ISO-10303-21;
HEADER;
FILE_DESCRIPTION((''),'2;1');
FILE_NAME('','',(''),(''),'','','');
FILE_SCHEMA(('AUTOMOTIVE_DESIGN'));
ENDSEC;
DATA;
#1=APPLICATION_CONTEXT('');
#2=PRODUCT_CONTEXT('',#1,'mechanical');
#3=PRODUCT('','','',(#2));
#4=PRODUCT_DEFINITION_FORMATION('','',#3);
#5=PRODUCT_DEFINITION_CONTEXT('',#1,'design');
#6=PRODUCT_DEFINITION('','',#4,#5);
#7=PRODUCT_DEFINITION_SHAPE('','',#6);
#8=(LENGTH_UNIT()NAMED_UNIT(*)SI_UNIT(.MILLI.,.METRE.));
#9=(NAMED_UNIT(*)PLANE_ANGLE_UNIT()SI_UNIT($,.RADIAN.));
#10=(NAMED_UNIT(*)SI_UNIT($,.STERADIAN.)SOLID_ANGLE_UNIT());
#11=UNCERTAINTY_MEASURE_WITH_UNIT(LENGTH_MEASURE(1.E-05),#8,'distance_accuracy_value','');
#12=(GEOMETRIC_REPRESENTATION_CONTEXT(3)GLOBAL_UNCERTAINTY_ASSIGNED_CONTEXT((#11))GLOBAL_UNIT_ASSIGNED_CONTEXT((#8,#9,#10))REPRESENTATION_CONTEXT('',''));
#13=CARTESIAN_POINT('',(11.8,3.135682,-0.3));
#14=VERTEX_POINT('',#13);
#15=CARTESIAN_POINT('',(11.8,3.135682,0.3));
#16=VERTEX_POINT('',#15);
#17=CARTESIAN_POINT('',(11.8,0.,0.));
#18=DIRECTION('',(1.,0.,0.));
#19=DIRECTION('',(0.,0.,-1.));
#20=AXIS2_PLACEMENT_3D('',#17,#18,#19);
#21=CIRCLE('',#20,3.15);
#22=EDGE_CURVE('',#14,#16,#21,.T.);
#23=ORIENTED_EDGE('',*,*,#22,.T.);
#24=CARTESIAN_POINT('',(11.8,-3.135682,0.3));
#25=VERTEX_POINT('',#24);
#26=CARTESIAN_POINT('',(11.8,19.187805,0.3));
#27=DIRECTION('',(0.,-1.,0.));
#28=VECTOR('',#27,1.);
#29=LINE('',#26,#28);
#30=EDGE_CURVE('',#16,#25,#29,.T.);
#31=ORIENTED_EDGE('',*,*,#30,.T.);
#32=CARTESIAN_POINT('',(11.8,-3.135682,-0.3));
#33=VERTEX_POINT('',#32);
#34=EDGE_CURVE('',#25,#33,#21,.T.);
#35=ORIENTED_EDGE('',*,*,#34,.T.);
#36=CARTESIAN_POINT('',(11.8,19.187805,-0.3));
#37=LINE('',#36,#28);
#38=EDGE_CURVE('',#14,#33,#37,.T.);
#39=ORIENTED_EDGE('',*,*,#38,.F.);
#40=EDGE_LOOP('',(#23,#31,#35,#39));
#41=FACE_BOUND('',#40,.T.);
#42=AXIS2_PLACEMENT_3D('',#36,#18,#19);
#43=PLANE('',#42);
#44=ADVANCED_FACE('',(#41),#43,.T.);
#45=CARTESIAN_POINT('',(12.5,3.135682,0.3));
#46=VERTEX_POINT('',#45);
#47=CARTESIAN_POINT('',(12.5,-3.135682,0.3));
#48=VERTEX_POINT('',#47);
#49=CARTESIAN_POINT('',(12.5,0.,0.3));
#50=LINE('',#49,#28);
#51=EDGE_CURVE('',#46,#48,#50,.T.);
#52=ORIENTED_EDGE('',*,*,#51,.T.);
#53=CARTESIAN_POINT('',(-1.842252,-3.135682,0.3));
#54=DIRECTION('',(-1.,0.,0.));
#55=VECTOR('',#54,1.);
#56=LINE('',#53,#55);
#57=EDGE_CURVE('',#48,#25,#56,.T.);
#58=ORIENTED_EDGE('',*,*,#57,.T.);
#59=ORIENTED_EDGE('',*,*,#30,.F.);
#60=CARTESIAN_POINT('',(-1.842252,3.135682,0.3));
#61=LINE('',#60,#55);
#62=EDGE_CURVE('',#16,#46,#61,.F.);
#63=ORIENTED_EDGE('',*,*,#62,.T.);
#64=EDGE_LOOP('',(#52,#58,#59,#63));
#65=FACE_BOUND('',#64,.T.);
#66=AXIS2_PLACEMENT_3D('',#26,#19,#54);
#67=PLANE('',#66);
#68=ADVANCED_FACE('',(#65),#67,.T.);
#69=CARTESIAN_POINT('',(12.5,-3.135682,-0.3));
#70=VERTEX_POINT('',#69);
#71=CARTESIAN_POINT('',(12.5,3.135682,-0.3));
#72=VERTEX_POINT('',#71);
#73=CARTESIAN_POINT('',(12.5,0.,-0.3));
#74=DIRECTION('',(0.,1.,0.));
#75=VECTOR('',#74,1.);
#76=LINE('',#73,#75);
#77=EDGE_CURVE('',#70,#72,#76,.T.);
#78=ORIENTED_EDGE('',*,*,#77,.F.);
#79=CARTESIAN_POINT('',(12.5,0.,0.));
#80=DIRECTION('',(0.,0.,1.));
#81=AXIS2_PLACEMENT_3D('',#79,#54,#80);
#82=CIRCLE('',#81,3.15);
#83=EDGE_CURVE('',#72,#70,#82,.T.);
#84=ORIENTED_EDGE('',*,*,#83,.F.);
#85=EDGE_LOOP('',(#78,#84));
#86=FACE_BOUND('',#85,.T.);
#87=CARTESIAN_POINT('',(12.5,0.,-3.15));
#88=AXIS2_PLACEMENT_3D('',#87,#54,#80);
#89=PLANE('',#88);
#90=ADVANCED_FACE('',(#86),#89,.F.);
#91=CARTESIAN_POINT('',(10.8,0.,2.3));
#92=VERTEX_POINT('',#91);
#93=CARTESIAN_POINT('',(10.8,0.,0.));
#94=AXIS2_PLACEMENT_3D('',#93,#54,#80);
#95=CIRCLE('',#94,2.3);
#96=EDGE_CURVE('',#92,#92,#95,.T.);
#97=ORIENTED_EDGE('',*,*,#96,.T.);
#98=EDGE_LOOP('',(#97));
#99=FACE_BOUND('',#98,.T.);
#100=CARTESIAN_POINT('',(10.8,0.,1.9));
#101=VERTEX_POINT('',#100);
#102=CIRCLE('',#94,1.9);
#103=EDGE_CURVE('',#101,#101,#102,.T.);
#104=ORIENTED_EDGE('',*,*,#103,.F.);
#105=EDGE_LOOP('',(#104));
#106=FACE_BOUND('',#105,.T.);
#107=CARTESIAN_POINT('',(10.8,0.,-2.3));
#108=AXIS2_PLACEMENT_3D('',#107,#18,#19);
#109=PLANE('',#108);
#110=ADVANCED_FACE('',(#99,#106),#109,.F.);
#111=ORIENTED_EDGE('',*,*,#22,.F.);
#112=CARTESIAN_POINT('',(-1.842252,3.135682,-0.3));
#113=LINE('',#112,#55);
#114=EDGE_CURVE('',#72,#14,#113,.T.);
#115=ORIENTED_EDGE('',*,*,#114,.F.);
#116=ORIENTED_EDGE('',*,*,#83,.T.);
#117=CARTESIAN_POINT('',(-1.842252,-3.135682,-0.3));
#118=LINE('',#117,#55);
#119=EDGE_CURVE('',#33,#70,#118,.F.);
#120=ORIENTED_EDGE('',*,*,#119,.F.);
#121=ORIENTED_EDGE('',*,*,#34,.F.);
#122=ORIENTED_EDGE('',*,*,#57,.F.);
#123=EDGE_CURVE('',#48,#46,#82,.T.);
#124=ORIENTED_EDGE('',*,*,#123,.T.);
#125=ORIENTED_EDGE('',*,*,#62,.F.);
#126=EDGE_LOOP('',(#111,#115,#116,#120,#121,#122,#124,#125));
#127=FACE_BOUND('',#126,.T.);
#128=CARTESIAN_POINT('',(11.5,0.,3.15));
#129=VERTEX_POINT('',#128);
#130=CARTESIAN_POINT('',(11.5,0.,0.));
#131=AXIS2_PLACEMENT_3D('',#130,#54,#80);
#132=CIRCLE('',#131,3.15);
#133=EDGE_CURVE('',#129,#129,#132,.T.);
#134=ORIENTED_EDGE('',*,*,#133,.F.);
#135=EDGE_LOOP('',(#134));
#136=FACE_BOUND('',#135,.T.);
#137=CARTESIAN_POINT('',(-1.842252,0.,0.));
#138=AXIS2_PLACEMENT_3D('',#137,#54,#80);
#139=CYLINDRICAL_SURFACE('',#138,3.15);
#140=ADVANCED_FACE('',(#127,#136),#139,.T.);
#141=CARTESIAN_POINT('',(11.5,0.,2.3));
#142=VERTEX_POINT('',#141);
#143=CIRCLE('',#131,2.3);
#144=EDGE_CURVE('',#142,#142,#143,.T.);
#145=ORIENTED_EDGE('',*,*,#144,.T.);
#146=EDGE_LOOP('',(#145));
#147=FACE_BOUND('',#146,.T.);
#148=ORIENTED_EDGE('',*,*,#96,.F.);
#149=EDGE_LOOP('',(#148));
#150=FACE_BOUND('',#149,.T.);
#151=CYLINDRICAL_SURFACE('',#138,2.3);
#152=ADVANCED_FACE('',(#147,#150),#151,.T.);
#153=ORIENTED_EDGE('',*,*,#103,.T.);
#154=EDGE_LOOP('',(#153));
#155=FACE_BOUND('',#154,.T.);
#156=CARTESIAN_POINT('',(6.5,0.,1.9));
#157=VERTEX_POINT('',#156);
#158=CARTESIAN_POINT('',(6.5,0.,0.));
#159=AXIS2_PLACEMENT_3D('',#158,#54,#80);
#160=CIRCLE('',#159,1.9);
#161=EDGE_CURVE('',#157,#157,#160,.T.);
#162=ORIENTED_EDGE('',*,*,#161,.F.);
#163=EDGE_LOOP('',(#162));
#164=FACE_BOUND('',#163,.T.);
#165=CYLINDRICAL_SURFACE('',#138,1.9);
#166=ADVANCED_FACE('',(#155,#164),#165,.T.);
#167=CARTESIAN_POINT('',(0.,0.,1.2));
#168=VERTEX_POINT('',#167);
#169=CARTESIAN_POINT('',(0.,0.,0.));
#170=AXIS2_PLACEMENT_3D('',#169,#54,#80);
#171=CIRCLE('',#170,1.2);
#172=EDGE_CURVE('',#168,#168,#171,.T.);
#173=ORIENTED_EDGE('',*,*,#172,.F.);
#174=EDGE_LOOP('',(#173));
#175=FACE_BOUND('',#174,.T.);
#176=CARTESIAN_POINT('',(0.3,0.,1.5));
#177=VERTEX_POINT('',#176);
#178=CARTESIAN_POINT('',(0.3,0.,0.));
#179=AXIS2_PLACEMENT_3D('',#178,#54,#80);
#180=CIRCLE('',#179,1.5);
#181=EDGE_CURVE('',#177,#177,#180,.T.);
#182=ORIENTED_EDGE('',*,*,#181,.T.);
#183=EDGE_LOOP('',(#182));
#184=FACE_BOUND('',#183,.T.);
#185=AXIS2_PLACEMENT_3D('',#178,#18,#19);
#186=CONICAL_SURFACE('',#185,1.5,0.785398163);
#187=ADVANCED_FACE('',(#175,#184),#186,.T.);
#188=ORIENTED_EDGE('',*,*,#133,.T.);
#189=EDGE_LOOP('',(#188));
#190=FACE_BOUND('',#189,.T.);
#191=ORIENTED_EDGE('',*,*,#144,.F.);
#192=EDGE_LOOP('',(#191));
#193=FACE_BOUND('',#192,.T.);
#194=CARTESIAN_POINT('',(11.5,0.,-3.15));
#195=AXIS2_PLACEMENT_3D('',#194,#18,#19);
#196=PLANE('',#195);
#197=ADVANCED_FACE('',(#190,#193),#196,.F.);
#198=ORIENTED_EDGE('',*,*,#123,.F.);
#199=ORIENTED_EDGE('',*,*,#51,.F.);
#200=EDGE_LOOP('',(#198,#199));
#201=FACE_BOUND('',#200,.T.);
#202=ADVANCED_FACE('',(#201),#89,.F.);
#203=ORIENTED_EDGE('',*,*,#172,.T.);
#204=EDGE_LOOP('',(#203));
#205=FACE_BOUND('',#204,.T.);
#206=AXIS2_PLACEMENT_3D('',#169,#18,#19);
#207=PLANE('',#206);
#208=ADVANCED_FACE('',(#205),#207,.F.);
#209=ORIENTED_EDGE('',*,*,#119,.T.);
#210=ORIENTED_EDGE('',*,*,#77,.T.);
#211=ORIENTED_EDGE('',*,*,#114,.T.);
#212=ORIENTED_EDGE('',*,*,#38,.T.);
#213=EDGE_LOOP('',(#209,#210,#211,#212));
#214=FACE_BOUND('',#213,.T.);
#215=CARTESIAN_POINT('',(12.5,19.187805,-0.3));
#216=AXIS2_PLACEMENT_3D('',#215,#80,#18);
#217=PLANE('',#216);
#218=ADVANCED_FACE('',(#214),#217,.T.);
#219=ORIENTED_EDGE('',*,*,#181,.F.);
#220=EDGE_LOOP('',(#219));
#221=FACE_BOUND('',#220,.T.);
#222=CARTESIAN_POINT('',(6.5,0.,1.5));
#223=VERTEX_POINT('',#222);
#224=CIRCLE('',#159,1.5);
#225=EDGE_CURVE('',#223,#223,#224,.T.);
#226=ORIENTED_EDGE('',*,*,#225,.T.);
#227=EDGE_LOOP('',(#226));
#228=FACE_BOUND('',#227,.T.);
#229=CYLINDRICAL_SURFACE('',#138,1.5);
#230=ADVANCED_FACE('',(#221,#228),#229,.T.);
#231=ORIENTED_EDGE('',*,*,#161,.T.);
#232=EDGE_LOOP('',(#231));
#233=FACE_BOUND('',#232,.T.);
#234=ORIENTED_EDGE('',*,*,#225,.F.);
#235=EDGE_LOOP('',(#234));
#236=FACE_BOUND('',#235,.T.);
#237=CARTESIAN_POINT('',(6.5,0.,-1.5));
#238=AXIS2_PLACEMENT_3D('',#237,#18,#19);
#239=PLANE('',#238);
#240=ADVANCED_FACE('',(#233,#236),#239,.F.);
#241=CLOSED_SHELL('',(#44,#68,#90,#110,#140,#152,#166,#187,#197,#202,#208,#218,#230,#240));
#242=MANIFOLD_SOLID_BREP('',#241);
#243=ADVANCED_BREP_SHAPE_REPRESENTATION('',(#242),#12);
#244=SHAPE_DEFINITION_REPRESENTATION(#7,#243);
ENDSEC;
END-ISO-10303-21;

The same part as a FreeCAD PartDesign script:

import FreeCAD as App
import Part
import Sketcher
from FreeCAD import Vector
Q = App.Units.Quantity


def add_polygon(sketch, points):
    """Adds a closed chain of lines whose ends are joined by coincident constraints."""
    first, n = sketch.GeometryCount, len(points)
    for a, b in zip(points, points[1:] + points[:1]):
        sketch.addGeometry(Part.LineSegment(App.Vector(*a, 0), App.Vector(*b, 0)), False)
    for i in range(n):
        sketch.addConstraint(Sketcher.Constraint("Coincident", first + i, 2, first + (i + 1) % n, 1))

doc = App.newDocument("Part")
params = doc.addObject("Spreadsheet::Sheet", "Params")
for row, (alias, value) in enumerate([
    ("sketch1_width", "1 mm"),
    ("sketch1_width2", "12.5 mm"),
    ("sketch1_width3", "0.7 mm"),
    ("sketch1_width4", "4.3 mm"),
    ("sketch1_width5", "6.2 mm"),
    ("revolution_angle", "360 deg"),
    ("sketch2_height", "0.6 mm"),
], start=1):
    params.set(f"A{row}", alias)
    params.set(f"B{row}", "=" + value)
    params.setAlias(f"B{row}", alias)

body = doc.addObject("PartDesign::Body", "Body")

sketch1 = body.newObject("Sketcher::SketchObject", "Sketch")
sketch1.AttachmentSupport = (doc.getObject("XZ_Plane"), [""])
sketch1.MapMode = "FlatFace"
add_polygon(sketch1, [(0, -1.2), (0, 0), (12.5, 0), (12.5, -3.15), (11.5, -3.15), (11.5, -2.3), (10.8, -2.3), (10.8, -1.9), (6.5, -1.9), (6.5, -1.5), (0.3, -1.5)])
sketch1.addConstraint(Sketcher.Constraint("Vertical", 0))
sketch1.addConstraint(Sketcher.Constraint("Horizontal", 1))
sketch1.addConstraint(Sketcher.Constraint("Vertical", 2))
sketch1.addConstraint(Sketcher.Constraint("Horizontal", 3))
sketch1.addConstraint(Sketcher.Constraint("Vertical", 4))
sketch1.addConstraint(Sketcher.Constraint("Horizontal", 5))
sketch1.addConstraint(Sketcher.Constraint("Vertical", 6))
sketch1.addConstraint(Sketcher.Constraint("Horizontal", 7))
sketch1.addConstraint(Sketcher.Constraint("Vertical", 8))
sketch1.addConstraint(Sketcher.Constraint("Horizontal", 9))
sketch1.addConstraint(Sketcher.Constraint("Coincident", 0, 2, -1, 1))
sketch1.addConstraint(Sketcher.Constraint("Equal", 6, 8))
sketch1.addConstraint(Sketcher.Constraint("DistanceX", 3, 2, 3, 1, Q("1 mm")))
sketch1.addConstraint(Sketcher.Constraint("Angle", 10, Q("135 deg")))
sketch1.addConstraint(Sketcher.Constraint("DistanceX", 1, 1, 1, 2, Q("12.5 mm")))
sketch1.addConstraint(Sketcher.Constraint("DistanceX", 5, 2, 5, 1, Q("0.7 mm")))
sketch1.addConstraint(Sketcher.Constraint("DistanceX", 7, 2, 7, 1, Q("4.3 mm")))
sketch1.addConstraint(Sketcher.Constraint("DistanceX", 9, 2, 9, 1, Q("6.2 mm")))
sketch1.addConstraint(Sketcher.Constraint("DistanceY", 0, 1, 0, 2, Q("1.2 mm")))
sketch1.addConstraint(Sketcher.Constraint("DistanceY", 6, 1, 6, 2, Q("0.4 mm")))
sketch1.addConstraint(Sketcher.Constraint("DistanceY", 2, 2, 2, 1, Q("3.15 mm")))
sketch1.setExpression("Constraints[23]", "Params.sketch1_width")
sketch1.setExpression("Constraints[25]", "Params.sketch1_width2")
sketch1.setExpression("Constraints[26]", "Params.sketch1_width3")
sketch1.setExpression("Constraints[27]", "Params.sketch1_width4")
sketch1.setExpression("Constraints[28]", "Params.sketch1_width5")
revolution = body.newObject("PartDesign::Revolution", "Revolution")
revolution.Profile = sketch1
revolution.ReferenceAxis = (sketch1, ["H_Axis"])
revolution.setExpression("Angle", "Params.revolution_angle")

sketch2 = body.newObject("Sketcher::SketchObject", "Sketch001")
sketch2.AttachmentSupport = (doc.getObject("XZ_Plane"), [""])
sketch2.MapMode = "FlatFace"
add_polygon(sketch2, [(11.8, -0.3), (11.8, 0.3), (120.304177, 0.3), (120.304177, -0.3)])
sketch2.addConstraint(Sketcher.Constraint("Vertical", 0))
sketch2.addConstraint(Sketcher.Constraint("Horizontal", 1))
sketch2.addConstraint(Sketcher.Constraint("Vertical", 2))
sketch2.addConstraint(Sketcher.Constraint("Horizontal", 3))
sketch2.addConstraint(Sketcher.Constraint("DistanceY", 0, 1, 0, 2, Q("0.6 mm")))
sketch2.addConstraint(Sketcher.Constraint("DistanceX", -1, 1, 0, 2, Q("11.8 mm")))
sketch2.addConstraint(Sketcher.Constraint("DistanceY", -1, 1, 0, 2, Q("0.3 mm")))
sketch2.addConstraint(Sketcher.Constraint("DistanceX", 1, 1, 1, 2, Q("108.504177 mm")))
sketch2.setExpression("Constraints[8]", "Params.sketch2_height")
pocket1 = body.newObject("PartDesign::Pocket", "Pocket")
pocket1.Profile = sketch2
pocket1.Type = "ThroughAll"
pocket1.Midplane = True

doc.recompute()
